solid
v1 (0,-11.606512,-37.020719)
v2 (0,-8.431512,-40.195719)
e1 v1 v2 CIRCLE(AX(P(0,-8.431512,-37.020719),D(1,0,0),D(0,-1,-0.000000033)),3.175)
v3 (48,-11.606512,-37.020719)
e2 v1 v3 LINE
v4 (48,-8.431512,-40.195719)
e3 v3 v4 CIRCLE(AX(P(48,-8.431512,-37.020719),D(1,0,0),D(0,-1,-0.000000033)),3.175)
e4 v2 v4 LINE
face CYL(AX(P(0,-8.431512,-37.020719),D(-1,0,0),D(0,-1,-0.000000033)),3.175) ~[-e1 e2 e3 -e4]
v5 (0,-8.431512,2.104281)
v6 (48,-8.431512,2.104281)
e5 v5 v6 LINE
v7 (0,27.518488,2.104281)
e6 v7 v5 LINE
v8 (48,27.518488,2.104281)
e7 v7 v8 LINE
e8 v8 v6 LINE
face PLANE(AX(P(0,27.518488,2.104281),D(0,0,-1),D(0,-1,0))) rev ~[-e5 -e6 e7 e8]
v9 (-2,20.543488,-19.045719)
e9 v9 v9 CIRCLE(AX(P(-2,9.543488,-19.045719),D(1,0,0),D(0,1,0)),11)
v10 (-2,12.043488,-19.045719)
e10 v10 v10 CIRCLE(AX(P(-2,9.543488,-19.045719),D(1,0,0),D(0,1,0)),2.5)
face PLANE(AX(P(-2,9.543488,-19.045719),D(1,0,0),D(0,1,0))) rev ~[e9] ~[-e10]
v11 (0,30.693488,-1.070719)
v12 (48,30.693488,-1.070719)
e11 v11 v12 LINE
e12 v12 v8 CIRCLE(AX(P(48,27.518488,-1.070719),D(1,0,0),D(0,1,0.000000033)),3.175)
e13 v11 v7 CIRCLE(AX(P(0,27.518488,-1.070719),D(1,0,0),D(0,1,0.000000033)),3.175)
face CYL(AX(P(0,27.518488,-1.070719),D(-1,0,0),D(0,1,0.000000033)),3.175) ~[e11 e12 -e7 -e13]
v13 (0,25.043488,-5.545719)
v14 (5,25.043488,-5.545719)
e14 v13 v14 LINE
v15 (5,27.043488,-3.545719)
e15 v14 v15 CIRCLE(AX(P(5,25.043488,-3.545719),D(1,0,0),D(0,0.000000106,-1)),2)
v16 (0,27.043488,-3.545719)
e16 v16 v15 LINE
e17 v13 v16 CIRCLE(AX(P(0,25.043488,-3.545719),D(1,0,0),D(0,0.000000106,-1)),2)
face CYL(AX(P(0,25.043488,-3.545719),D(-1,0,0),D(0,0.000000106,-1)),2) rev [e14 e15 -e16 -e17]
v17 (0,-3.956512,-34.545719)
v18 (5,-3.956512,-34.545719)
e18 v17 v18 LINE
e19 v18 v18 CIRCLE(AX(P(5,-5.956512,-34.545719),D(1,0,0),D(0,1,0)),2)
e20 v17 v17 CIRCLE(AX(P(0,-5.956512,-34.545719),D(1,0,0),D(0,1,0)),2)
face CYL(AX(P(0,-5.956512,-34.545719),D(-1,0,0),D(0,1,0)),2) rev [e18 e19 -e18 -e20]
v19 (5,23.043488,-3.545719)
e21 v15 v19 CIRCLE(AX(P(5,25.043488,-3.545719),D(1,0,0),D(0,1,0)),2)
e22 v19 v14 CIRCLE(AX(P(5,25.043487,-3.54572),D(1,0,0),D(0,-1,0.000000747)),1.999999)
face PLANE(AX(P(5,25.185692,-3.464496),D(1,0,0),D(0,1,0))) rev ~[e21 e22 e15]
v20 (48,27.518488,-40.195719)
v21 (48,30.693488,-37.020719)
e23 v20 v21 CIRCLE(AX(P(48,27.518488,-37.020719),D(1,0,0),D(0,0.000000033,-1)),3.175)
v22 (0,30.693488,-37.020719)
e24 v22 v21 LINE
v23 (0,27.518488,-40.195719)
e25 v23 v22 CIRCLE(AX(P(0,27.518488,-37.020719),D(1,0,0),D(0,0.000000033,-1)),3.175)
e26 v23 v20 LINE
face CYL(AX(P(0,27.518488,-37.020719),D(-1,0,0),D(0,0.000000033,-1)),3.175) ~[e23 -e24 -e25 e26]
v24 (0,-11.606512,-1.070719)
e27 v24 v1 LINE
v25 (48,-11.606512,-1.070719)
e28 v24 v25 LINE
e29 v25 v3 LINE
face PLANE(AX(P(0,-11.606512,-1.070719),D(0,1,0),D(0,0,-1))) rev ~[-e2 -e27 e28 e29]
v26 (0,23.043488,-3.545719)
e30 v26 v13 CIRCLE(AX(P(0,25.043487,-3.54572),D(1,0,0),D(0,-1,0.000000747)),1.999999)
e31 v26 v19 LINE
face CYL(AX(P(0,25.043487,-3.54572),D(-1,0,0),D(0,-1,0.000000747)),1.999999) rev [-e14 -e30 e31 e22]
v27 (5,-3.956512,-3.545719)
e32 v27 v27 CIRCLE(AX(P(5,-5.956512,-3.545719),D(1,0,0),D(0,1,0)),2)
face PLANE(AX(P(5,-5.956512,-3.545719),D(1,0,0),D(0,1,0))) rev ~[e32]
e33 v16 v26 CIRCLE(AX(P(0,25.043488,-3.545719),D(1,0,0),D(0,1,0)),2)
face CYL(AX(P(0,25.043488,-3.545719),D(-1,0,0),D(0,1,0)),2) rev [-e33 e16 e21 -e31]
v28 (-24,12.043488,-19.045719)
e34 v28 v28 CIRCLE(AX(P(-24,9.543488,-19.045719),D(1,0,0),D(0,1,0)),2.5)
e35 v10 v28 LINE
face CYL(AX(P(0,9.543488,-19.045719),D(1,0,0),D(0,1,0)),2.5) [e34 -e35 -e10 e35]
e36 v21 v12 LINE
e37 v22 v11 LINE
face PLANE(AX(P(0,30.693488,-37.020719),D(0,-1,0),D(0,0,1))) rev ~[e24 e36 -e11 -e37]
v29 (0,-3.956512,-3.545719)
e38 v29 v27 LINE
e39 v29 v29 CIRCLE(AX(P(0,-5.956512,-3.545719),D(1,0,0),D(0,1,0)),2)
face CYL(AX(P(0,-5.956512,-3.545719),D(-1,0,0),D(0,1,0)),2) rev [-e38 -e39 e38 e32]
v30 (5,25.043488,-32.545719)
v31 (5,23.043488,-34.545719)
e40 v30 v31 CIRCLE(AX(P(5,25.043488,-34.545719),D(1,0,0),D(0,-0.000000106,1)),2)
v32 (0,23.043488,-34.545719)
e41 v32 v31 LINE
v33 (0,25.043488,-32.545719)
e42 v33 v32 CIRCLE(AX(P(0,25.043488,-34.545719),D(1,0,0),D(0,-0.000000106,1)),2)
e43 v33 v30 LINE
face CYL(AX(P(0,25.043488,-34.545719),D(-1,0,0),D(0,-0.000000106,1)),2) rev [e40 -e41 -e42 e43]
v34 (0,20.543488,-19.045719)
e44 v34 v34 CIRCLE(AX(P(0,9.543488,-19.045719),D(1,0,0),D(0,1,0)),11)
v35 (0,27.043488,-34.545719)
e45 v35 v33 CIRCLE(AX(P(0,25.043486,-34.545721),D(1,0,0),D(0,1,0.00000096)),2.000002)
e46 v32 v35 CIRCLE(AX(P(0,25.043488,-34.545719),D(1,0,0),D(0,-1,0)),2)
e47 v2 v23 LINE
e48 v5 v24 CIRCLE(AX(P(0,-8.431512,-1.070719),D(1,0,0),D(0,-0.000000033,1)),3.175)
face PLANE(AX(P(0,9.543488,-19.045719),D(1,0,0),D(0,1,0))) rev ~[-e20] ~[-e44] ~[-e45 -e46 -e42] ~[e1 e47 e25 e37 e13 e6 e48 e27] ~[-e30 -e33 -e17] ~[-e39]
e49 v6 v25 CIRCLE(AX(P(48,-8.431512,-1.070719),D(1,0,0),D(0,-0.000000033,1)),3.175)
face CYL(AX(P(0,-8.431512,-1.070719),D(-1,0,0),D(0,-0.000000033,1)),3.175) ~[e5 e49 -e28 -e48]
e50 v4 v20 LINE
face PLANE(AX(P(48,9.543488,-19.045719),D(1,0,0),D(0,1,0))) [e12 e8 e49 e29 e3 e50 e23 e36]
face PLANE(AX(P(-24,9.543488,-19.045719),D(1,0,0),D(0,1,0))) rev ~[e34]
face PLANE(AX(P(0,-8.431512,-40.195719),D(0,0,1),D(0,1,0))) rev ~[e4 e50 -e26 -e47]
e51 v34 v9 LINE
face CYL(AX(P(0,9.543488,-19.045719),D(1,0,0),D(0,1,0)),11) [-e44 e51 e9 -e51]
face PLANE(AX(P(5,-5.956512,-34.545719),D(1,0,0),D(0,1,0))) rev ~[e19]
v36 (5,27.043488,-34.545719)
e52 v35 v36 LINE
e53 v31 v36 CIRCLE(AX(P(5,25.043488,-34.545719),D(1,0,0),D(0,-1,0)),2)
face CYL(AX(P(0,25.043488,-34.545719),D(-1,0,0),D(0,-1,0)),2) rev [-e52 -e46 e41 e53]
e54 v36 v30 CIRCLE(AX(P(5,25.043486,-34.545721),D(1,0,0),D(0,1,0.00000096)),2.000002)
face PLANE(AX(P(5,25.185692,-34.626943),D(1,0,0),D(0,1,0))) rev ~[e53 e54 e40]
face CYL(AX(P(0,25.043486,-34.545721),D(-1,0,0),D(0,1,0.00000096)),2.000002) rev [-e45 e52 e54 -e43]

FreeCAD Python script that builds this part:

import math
import FreeCAD as App
import Part
import Sketcher

V = App.Vector
Q = App.Units.Quantity

doc = App.newDocument("Part")
body = doc.addObject("PartDesign::Body", "Body")

sketch1 = doc.addObject("Sketcher::SketchObject", "Sketch")
body.addObject(sketch1)
sketch1.AttachmentSupport = (doc.YZ_Plane, [""])
sketch1.MapMode = "FlatFace"
sketch1.addGeometry([
    Part.LineSegment(V(27.5, 2.1, 0), V(-8.4, 2.1, 0)),
    Part.ArcOfCircle(Part.Circle(V(-8.4, -1.1, 0), V(0, 0, 1), 3.2), math.radians(90), math.radians(180)),
    Part.LineSegment(V(-11.6, -1.1, 0), V(-11.6, -37, 0)),
    Part.ArcOfCircle(Part.Circle(V(-8.4, -37, 0), V(0, 0, 1), 3.2), math.radians(-180), math.radians(-90)),
    Part.LineSegment(V(-8.4, -40.2, 0), V(27.5, -40.2, 0)),
    Part.ArcOfCircle(Part.Circle(V(27.5, -37, 0), V(0, 0, 1), 3.2), math.radians(-90), math.radians(0)),
    Part.LineSegment(V(30.7, -37, 0), V(30.7, -1.1, 0)),
    Part.ArcOfCircle(Part.Circle(V(27.5, -1.1, 0), V(0, 0, 1), 3.2), math.radians(0), math.radians(90)),
], False)
sketch1.addConstraint([
    Sketcher.Constraint("Tangent", 0, 2, 1, 1),
    Sketcher.Constraint("Tangent", 1, 2, 2, 1),
    Sketcher.Constraint("Tangent", 2, 2, 3, 1),
    Sketcher.Constraint("Tangent", 3, 2, 4, 1),
    Sketcher.Constraint("Tangent", 4, 2, 5, 1),
    Sketcher.Constraint("Tangent", 5, 2, 6, 1),
    Sketcher.Constraint("Tangent", 6, 2, 7, 1),
    Sketcher.Constraint("Tangent", 7, 2, 0, 1),
    Sketcher.Constraint("Horizontal", 0),
    Sketcher.Constraint("Vertical", 2),
    Sketcher.Constraint("Horizontal", 4),
    Sketcher.Constraint("Vertical", 6),
    Sketcher.Constraint("Equal", 1, 3),
    Sketcher.Constraint("Equal", 3, 5),
    Sketcher.Constraint("Equal", 5, 7),
    Sketcher.Constraint("Equal", 4, 2),
    Sketcher.Constraint("Radius", 1, Q("3.175 mm")),
    Sketcher.Constraint("DistanceX", 0, 2, 0, 1, Q("35.95 mm")),
    Sketcher.Constraint("DistanceX", 1, 3, -1, 1, Q("8.431512 mm")),
    Sketcher.Constraint("DistanceY", 1, 3, -1, 1, Q("1.070719 mm")),
])
pad1 = doc.addObject("PartDesign::Pad", "Pad")
body.addObject(pad1)
pad1.Profile = sketch1
pad1.Length = 48

sketch2 = doc.addObject("Sketcher::SketchObject", "Sketch001")
body.addObject(sketch2)
sketch2.AttachmentSupport = (doc.YZ_Plane, [""])
sketch2.MapMode = "FlatFace"
sketch2.addGeometry(Part.Circle(V(10, -19, 0), V(0, 0, 1), 11), False)
sketch2.addConstraint([
    Sketcher.Constraint("Diameter", 0, Q("22 mm")),
    Sketcher.Constraint("DistanceY", 0, 3, -1, 1, Q("19.045719 mm")),
    Sketcher.Constraint("DistanceX", -1, 1, 0, 3, Q("9.543488 mm")),
])
pad2 = doc.addObject("PartDesign::Pad", "Pad001")
body.addObject(pad2)
pad2.Profile = sketch2
pad2.Length = 2
pad2.Reversed = True

sketch3 = doc.addObject("Sketcher::SketchObject", "Sketch002")
body.addObject(sketch3)
sketch3.AttachmentSupport = (doc.YZ_Plane, [""])
sketch3.MapMode = "FlatFace"
sketch3.addGeometry(Part.Circle(V(9.5, -19, 0), V(0, 0, 1), 2.5), False)
sketch3.addConstraint([
    Sketcher.Constraint("Diameter", 0, Q("5 mm")),
    Sketcher.Constraint("DistanceY", 0, 3, -1, 1, Q("19.045719 mm")),
    Sketcher.Constraint("DistanceX", -1, 1, 0, 3, Q("9.543488 mm")),
])
pad3 = doc.addObject("PartDesign::Pad", "Pad002")
body.addObject(pad3)
pad3.Profile = sketch3
pad3.Length = 24
pad3.Reversed = True

sketch4 = doc.addObject("Sketcher::SketchObject", "Sketch003")
body.addObject(sketch4)
sketch4.AttachmentSupport = (doc.YZ_Plane, [""])
sketch4.MapMode = "FlatFace"
sketch4.addGeometry([
    Part.ArcOfCircle(Part.Circle(V(25, -3.5, 0), V(0, 0, 1), 2), math.radians(-90), math.radians(0)),
    Part.ArcOfCircle(Part.Circle(V(25, -3.5, 0), V(0, 0, 1), 2), math.radians(0), math.radians(180)),
    Part.ArcOfCircle(Part.Circle(V(25, -3.5, 0), V(0, 0, 1), 2), math.radians(180), math.radians(270)),
    Part.ArcOfCircle(Part.Circle(V(25, -34.5, 0), V(0, 0, 1), 2), math.radians(0), math.radians(90)),
    Part.ArcOfCircle(Part.Circle(V(25, -34.5, 0), V(0, 0, 1), 2), math.radians(90), math.radians(180)),
    Part.ArcOfCircle(Part.Circle(V(25, -34.5, 0), V(0, 0, 1), 2), math.radians(180), math.radians(360)),
    Part.Circle(V(-6, -34.5, 0), V(0, 0, 1), 2),
    Part.Circle(V(-6, -3.5, 0), V(0, 0, 1), 2),
], False)
sketch4.addConstraint([
    Sketcher.Constraint("Tangent", 0, 2, 1, 1),
    Sketcher.Constraint("Tangent", 1, 2, 2, 1),
    Sketcher.Constraint("Tangent", 2, 2, 0, 1),
    Sketcher.Constraint("Tangent", 3, 2, 4, 1),
    Sketcher.Constraint("Tangent", 4, 2, 5, 1),
    Sketcher.Constraint("Tangent", 5, 2, 3, 1),
    Sketcher.Constraint("Equal", 1, 3),
    Sketcher.Constraint("Equal", 5, 6),
    Sketcher.Constraint("Equal", 6, 7),
    Sketcher.Constraint("Horizontal", 5, 3, 6, 3),
    Sketcher.Constraint("Horizontal", 2, 3, 7, 3),
    Sketcher.Constraint("Horizontal", 7, 3, 0, 2),
    Sketcher.Constraint("Horizontal", 0, 2, 1, 2),
    Sketcher.Constraint("Horizontal", 6, 3, 4, 2),
    Sketcher.Constraint("Horizontal", 4, 2, 5, 2),
    Sketcher.Constraint("Vertical", 2, 3, 3, 3),
    Sketcher.Constraint("Vertical", 6, 3, 7, 3),
    Sketcher.Constraint("Vertical", 5, 3, 2, 2),
    Sketcher.Constraint("Vertical", 2, 2, 3, 2),
    Sketcher.Constraint("Diameter", 6, Q("4 mm")),
    Sketcher.Constraint("DistanceY", 3, 3, 2, 3, Q("31 mm")),
    Sketcher.Constraint("DistanceX", 6, 3, 3, 3, Q("30.999998 mm")),
    Sketcher.Constraint("DistanceY", 0, 3, -1, 1, Q("3.545719 mm")),
    Sketcher.Constraint("DistanceX", -1, 1, 1, 3, Q("25.043488 mm")),
])
pocket1 = doc.addObject("PartDesign::Pocket", "Pocket")
body.addObject(pocket1)
pocket1.Profile = sketch4
pocket1.Length = 5
pocket1.Reversed = True

doc.recompute()
